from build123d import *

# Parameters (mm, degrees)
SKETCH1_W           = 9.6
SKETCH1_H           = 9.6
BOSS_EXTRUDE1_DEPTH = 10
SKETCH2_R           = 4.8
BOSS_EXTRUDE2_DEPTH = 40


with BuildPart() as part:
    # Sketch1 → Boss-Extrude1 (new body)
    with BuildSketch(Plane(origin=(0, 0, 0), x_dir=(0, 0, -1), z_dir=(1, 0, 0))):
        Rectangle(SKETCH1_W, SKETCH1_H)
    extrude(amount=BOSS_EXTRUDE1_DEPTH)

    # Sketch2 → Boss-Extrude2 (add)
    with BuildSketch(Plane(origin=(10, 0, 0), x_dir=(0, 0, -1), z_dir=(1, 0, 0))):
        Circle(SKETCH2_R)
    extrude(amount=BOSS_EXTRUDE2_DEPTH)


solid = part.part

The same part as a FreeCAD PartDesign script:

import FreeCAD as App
import Part
import Sketcher
from FreeCAD import Vector
Q = App.Units.Quantity


def add_polygon(sketch, points):
    """Adds a closed chain of lines whose ends are joined by coincident constraints."""
    first, n = sketch.GeometryCount, len(points)
    for a, b in zip(points, points[1:] + points[:1]):
        sketch.addGeometry(Part.LineSegment(App.Vector(*a, 0), App.Vector(*b, 0)), False)
    for i in range(n):
        sketch.addConstraint(Sketcher.Constraint("Coincident", first + i, 2, first + (i + 1) % n, 1))

doc = App.newDocument("Part")
body = doc.addObject("PartDesign::Body", "Body")

# Sketch on YZ plane
sketch1 = body.newObject("Sketcher::SketchObject", "Sketch")
sketch1.AttachmentSupport = (doc.getObject("YZ_Plane"), [""])
sketch1.MapMode = "FlatFace"
add_polygon(sketch1, [(5, 5), (-5, 5), (-5, -5), (5, -5)])  # lines 0-3
sketch1.addConstraint(Sketcher.Constraint("Horizontal", 0))
sketch1.addConstraint(Sketcher.Constraint("Vertical", 1))
sketch1.addConstraint(Sketcher.Constraint("Horizontal", 2))
sketch1.addConstraint(Sketcher.Constraint("Vertical", 3))
sketch1.addConstraint(Sketcher.Constraint("Symmetric", 0, 2, 2, 2, -1, 1))
sketch1.addConstraint(Sketcher.Constraint("Equal", 2, 1))
sketch1.addConstraint(Sketcher.Constraint("DistanceX", 0, 2, 0, 1, Q("9.6 mm")))
pad1 = body.newObject("PartDesign::Pad", "Pad")
pad1.Profile = sketch1
pad1.Length = 10

# Sketch on YZ plane
sketch2 = body.newObject("Sketcher::SketchObject", "Sketch001")
sketch2.AttachmentSupport = (doc.getObject("YZ_Plane"), [""])
sketch2.MapMode = "FlatFace"
sketch2.AttachmentOffset = App.Placement(Vector(0, 0, 10), App.Rotation())
sketch2.addGeometry(Part.Circle(Vector(0, 0, 0), Vector(0, 0, 1), 4.8), False)
sketch2.addConstraint(Sketcher.Constraint("Coincident", 0, 3, -1, 1))
sketch2.addConstraint(Sketcher.Constraint("Diameter", 0, Q("9.6 mm")))
pad2 = body.newObject("PartDesign::Pad", "Pad001")
pad2.Profile = sketch2
pad2.Length = 40

doc.recompute()
